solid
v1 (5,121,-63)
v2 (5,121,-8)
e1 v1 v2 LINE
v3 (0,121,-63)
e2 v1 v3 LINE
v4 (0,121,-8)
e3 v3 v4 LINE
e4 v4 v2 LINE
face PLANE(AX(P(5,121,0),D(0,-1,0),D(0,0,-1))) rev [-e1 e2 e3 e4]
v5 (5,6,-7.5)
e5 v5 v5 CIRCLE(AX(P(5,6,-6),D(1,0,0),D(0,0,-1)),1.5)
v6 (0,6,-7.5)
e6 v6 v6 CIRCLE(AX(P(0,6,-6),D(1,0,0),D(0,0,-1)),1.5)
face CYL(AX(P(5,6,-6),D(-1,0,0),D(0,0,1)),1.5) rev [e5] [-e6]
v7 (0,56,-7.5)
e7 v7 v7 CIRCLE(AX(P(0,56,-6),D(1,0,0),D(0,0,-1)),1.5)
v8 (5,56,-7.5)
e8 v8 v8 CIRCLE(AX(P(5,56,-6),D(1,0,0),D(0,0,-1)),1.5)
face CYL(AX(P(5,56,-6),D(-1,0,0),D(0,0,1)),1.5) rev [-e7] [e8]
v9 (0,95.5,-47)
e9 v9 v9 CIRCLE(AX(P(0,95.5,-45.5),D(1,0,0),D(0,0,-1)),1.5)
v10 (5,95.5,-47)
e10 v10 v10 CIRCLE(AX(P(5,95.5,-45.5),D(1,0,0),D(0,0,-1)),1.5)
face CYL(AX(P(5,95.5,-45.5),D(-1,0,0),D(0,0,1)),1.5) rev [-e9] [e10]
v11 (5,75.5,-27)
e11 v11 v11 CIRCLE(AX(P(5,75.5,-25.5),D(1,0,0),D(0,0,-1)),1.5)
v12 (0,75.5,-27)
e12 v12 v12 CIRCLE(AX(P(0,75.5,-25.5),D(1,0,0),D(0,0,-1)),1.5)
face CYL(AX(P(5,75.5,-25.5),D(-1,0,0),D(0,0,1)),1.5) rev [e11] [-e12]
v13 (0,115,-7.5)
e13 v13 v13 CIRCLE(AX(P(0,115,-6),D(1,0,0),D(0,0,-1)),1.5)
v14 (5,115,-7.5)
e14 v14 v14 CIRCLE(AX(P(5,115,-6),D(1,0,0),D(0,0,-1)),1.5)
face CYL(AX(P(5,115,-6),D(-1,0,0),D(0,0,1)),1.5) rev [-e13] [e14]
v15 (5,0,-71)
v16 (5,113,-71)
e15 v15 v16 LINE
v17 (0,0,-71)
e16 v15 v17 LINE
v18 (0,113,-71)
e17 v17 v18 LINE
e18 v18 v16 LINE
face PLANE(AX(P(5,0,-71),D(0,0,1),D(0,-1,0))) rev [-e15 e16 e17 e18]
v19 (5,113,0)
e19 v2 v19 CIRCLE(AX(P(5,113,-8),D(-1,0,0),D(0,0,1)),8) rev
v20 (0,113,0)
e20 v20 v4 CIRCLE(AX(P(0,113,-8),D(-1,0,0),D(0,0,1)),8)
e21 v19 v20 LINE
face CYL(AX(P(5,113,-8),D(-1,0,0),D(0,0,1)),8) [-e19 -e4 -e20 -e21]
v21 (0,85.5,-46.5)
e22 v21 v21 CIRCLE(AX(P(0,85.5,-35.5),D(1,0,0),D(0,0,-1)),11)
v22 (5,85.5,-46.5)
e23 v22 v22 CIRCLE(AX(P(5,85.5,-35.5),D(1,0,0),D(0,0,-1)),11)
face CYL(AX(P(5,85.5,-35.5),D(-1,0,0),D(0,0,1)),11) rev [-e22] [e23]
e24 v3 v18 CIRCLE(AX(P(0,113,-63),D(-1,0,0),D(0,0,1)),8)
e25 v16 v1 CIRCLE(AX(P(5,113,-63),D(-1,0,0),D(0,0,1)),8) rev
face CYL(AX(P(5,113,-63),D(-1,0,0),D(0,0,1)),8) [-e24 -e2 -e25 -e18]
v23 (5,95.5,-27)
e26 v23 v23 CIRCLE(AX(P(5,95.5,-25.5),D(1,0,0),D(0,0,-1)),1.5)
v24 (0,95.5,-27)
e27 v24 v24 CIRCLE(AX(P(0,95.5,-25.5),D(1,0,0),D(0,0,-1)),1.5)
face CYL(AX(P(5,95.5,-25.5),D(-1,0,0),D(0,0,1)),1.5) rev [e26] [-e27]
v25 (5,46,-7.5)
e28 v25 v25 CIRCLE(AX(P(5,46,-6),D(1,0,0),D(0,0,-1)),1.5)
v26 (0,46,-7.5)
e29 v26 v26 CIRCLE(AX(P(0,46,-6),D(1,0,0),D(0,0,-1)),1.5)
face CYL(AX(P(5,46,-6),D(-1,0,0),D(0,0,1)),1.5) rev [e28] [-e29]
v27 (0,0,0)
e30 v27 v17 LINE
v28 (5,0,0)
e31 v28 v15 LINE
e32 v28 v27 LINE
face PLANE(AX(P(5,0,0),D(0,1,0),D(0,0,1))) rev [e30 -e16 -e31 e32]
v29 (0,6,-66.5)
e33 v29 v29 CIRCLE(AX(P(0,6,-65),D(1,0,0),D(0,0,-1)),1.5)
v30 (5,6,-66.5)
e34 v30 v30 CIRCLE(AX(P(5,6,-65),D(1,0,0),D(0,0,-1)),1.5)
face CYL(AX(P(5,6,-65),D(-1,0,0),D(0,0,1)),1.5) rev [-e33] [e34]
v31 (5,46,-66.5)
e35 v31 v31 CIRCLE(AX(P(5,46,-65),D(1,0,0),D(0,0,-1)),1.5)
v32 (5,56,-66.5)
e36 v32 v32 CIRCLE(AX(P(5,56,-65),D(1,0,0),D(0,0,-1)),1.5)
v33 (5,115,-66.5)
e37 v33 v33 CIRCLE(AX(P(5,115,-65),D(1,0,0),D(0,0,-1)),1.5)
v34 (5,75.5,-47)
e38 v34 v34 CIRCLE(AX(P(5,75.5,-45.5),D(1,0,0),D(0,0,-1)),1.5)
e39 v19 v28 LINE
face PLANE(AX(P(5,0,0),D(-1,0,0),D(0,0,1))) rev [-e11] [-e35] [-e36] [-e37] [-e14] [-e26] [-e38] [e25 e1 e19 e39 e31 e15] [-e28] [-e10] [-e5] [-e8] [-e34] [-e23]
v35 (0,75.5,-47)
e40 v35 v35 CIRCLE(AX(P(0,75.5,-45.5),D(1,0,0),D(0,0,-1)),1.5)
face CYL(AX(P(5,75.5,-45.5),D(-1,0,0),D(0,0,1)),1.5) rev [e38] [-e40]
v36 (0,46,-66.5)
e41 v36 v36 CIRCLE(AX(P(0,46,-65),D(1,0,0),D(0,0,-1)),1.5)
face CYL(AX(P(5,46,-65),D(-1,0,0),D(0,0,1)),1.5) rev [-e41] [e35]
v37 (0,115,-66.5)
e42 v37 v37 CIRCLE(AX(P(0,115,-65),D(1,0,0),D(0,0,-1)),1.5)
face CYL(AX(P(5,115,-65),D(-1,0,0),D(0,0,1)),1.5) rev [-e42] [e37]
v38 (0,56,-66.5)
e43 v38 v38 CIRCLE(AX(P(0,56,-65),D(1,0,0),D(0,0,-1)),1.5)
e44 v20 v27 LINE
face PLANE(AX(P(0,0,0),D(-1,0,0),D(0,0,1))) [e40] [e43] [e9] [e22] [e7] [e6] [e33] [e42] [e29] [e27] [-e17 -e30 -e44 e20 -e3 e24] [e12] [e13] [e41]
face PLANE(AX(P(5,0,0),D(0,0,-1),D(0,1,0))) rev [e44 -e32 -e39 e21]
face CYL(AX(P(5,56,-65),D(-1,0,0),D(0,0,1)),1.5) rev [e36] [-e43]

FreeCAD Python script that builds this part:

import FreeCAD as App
import Part
import Sketcher

V = App.Vector


def edges_at(feature, points):
    """Names of the edges that pass closest to the given points."""
    edges = feature.Shape.Edges
    near = lambda p: min(range(len(edges)), key=lambda i: edges[i].distToShape(Part.Vertex(*p))[0])
    return sorted({f"Edge{near(p) + 1}" for p in points})

doc = App.newDocument("Part")
body = doc.addObject("PartDesign::Body", "Body")

sketch1 = doc.addObject("Sketcher::SketchObject", "Sketch")
body.addObject(sketch1)
sketch1.AttachmentSupport = (doc.YZ_Plane, [""])
sketch1.MapMode = "FlatFace"
sketch1.addGeometry([
    Part.LineSegment(V(121, 0, 0), V(0, 0, 0)),
    Part.LineSegment(V(0, 0, 0), V(0, -71, 0)),
    Part.LineSegment(V(0, -71, 0), V(121, -71, 0)),
    Part.LineSegment(V(121, -71, 0), V(121, 0, 0)),
    Part.Circle(V(6, -6, 0), V(0, 0, 1), 1.5),
    Part.Circle(V(46, -6, 0), V(0, 0, 1), 1.5),
    Part.Circle(V(56, -6, 0), V(0, 0, 1), 1.5),
    Part.Circle(V(6, -65, 0), V(0, 0, 1), 1.5),
    Part.Circle(V(46, -65, 0), V(0, 0, 1), 1.5),
    Part.Circle(V(56, -65, 0), V(0, 0, 1), 1.5),
    Part.Circle(V(75.5, -25.5, 0), V(0, 0, 1), 1.5),
    Part.Circle(V(115, -6, 0), V(0, 0, 1), 1.5),
    Part.Circle(V(95.5, -25.5, 0), V(0, 0, 1), 1.5),
    Part.Circle(V(85.5, -35.5, 0), V(0, 0, 1), 11),
    Part.Circle(V(75.5, -45.5, 0), V(0, 0, 1), 1.5),
    Part.Circle(V(95.5, -45.5, 0), V(0, 0, 1), 1.5),
    Part.Circle(V(115, -65, 0), V(0, 0, 1), 1.5),
], False)
sketch1.addConstraint([
    Sketcher.Constraint("Coincident", 0, 2, 1, 1),
    Sketcher.Constraint("Coincident", 1, 2, 2, 1),
    Sketcher.Constraint("Coincident", 2, 2, 3, 1),
    Sketcher.Constraint("Coincident", 3, 2, 0, 1),
    Sketcher.Constraint("Horizontal", 0),
    Sketcher.Constraint("Vertical", 1),
    Sketcher.Constraint("Horizontal", 2),
    Sketcher.Constraint("Vertical", 3),
    Sketcher.Constraint("Coincident", 0, 2, -1, 1),
    Sketcher.Constraint("Equal", 4, 5),
    Sketcher.Constraint("Equal", 5, 6),
    Sketcher.Constraint("Equal", 6, 7),
    Sketcher.Constraint("Equal", 7, 8),
    Sketcher.Constraint("Equal", 8, 9),
    Sketcher.Constraint("Equal", 9, 10),
    Sketcher.Constraint("Equal", 10, 11),
    Sketcher.Constraint("Equal", 11, 12),
    Sketcher.Constraint("Equal", 12, 14),
    Sketcher.Constraint("Equal", 14, 15),
    Sketcher.Constraint("Equal", 15, 16),
    Sketcher.Constraint("Horizontal", 4, 3, 5, 3),
    Sketcher.Constraint("Horizontal", 5, 3, 6, 3),
    Sketcher.Constraint("Horizontal", 7, 3, 8, 3),
    Sketcher.Constraint("Horizontal", 8, 3, 9, 3),
    Sketcher.Constraint("Horizontal", 6, 3, 11, 3),
    Sketcher.Constraint("Horizontal", 10, 3, 12, 3),
    Sketcher.Constraint("Horizontal", 14, 3, 15, 3),
    Sketcher.Constraint("Horizontal", 9, 3, 16, 3),
    Sketcher.Constraint("Vertical", 4, 3, 7, 3),
    Sketcher.Constraint("Vertical", 5, 3, 8, 3),
    Sketcher.Constraint("Vertical", 6, 3, 9, 3),
    Sketcher.Constraint("Vertical", 10, 3, 14, 3),
    Sketcher.Constraint("Vertical", 12, 3, 15, 3),
    Sketcher.Constraint("Vertical", 11, 3, 16, 3),
    Sketcher.Constraint("Diameter", 4, 3.0),
    Sketcher.Constraint("Diameter", 13, 22.0),
    Sketcher.Constraint("DistanceX", 0, 2, 0, 1, 121.0),
    Sketcher.Constraint("DistanceY", 1, 2, 1, 1, 71.0),
    Sketcher.Constraint("DistanceX", -1, 1, 4, 3, 6.0),
    Sketcher.Constraint("DistanceY", 4, 3, -1, 1, 6.0),
    Sketcher.Constraint("DistanceX", -1, 1, 5, 3, 46.0),
    Sketcher.Constraint("DistanceX", -1, 1, 6, 3, 56.0),
    Sketcher.Constraint("DistanceY", 7, 3, -1, 1, 65.0),
    Sketcher.Constraint("DistanceX", -1, 1, 11, 3, 115.0),
    Sketcher.Constraint("DistanceX", 10, 3, 12, 3, 20.0),
    Sketcher.Constraint("DistanceX", 10, 3, 13, 3, 10.0),
    Sketcher.Constraint("DistanceY", 13, 3, 10, 3, 10.0),
    Sketcher.Constraint("DistanceY", 14, 3, 13, 3, 10.0),
    Sketcher.Constraint("DistanceX", -1, 1, 10, 3, 75.5),
    Sketcher.Constraint("DistanceY", 10, 3, -1, 1, 25.5),
])
pad1 = doc.addObject("PartDesign::Pad", "Pad")
body.addObject(pad1)
pad1.Profile = sketch1
pad1.Length = 5
doc.recompute()

fillet = doc.addObject("PartDesign::Fillet", "Fillet")
body.addObject(fillet)
fillet.Base = (pad1, edges_at(pad1, [(2.5, 121, 0), (2.5, 121, -71)]))
fillet.Radius = 8

doc.recompute()
